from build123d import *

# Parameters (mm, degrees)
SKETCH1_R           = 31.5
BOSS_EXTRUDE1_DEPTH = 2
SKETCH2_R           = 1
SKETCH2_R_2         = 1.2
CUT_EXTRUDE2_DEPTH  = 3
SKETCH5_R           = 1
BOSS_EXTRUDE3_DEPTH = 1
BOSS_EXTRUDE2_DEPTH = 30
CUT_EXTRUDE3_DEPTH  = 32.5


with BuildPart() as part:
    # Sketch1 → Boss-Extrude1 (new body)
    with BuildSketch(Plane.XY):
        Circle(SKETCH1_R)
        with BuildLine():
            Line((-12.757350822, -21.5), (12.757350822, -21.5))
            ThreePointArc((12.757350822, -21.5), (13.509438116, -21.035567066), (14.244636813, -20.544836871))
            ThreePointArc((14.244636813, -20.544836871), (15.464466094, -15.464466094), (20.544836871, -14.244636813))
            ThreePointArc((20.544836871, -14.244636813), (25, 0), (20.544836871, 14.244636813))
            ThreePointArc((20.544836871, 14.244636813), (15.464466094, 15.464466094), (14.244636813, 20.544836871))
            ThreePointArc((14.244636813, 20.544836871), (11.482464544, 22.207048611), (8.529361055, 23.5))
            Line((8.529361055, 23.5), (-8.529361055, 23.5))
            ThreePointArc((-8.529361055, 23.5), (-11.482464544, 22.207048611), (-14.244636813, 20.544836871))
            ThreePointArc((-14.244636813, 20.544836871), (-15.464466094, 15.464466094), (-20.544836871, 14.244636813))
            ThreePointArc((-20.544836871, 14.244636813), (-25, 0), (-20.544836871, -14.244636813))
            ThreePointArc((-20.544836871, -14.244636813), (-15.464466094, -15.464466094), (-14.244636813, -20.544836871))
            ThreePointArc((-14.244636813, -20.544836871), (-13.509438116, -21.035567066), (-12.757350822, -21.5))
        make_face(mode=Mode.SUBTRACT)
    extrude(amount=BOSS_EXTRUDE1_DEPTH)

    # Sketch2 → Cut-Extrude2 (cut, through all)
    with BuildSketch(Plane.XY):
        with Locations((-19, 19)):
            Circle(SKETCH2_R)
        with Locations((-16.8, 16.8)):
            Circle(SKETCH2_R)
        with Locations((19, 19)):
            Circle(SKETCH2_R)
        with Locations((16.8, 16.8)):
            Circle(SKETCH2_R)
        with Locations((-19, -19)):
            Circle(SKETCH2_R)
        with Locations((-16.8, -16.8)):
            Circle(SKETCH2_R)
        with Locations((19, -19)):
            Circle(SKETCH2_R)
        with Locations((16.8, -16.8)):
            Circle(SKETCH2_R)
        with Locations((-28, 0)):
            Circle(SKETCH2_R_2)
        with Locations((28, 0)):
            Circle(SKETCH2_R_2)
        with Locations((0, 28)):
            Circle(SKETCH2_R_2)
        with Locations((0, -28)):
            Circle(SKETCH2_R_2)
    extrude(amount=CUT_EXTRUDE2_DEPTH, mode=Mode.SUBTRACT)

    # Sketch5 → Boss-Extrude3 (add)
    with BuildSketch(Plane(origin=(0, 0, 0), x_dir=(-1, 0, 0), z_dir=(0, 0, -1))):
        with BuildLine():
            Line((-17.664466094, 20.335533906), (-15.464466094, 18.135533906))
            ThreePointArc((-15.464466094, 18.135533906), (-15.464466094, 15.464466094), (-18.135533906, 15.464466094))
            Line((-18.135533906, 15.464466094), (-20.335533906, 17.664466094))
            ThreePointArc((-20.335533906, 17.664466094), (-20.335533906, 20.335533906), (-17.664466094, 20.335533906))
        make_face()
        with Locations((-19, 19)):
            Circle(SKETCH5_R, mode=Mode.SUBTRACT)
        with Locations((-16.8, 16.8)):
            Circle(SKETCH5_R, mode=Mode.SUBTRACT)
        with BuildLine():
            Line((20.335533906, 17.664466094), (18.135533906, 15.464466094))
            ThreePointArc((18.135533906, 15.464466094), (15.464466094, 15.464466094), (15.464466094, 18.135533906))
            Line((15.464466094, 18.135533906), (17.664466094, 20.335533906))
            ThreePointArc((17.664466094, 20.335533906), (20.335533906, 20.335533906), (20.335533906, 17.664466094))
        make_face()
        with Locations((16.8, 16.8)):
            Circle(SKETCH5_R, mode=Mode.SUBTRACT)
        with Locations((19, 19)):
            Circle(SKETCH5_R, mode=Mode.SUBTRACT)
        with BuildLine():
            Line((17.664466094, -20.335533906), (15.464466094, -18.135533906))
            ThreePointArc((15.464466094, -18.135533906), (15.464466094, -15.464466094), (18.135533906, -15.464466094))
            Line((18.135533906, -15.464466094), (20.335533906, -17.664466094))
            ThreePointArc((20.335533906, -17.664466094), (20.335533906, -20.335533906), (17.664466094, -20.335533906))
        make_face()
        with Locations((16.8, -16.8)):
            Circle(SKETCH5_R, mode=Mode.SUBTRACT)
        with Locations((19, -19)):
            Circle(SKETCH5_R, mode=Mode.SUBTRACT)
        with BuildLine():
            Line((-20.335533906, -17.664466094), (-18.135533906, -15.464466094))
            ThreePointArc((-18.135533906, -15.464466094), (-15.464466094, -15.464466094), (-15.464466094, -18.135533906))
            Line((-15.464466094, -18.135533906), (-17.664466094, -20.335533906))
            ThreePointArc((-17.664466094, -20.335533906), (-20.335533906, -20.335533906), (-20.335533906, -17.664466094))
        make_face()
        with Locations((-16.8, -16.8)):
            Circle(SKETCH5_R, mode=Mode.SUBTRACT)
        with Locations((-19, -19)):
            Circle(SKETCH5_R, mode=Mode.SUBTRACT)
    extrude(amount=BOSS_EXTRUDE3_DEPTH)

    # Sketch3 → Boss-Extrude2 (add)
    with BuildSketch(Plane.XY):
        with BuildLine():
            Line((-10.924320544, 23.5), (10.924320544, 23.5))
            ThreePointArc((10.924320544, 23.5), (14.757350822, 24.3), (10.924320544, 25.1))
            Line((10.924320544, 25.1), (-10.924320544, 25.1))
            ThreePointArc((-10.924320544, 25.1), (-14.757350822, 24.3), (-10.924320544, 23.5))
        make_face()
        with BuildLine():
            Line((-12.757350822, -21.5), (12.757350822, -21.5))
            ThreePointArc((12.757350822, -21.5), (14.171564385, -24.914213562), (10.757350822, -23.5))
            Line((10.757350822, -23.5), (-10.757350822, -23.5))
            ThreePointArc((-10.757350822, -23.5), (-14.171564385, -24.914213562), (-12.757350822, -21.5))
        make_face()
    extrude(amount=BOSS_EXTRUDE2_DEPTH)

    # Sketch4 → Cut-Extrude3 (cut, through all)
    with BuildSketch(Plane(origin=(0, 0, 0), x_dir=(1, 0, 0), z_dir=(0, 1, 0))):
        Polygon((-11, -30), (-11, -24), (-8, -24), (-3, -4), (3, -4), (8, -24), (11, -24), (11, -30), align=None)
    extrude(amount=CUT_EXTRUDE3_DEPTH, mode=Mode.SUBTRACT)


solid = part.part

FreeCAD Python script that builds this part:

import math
import FreeCAD as App
import Part
import Sketcher
from FreeCAD import Vector
Q = App.Units.Quantity

doc = App.newDocument("Part")
body = doc.addObject("PartDesign::Body", "Body")

# Sketch on XY plane
sketch1 = body.newObject("Sketcher::SketchObject", "Sketch")
sketch1.AttachmentSupport = (doc.getObject("XY_Plane"), [""])
sketch1.MapMode = "FlatFace"
sketch1.addGeometry([
    Part.Circle(Vector(0, 0, 0), Vector(0, 0, 1), 31.5),  # 0
    Part.LineSegment(Vector(12.8, -21.5, 0), Vector(-12.8, -21.5, 0)),  # 1
    Part.ArcOfCircle(Part.Circle(Vector(0, 0, 0), Vector(0, 0, 1), 25), math.radians(-124.74), math.radians(-120.68)),  # 2
    Part.ArcOfCircle(Part.Circle(Vector(-19, -19, 0), Vector(0, 0, 1), 5), math.radians(-18), math.radians(108)),  # 3
    Part.ArcOfCircle(Part.Circle(Vector(0, 0, 0), Vector(0, 0, 1), 25), math.radians(145), math.radians(215)),  # 4
    Part.ArcOfCircle(Part.Circle(Vector(-19, 19, 0), Vector(0, 0, 1), 5), math.radians(-108), math.radians(18)),  # 5
    Part.ArcOfCircle(Part.Circle(Vector(0, 0, 0), Vector(0, 0, 1), 25), math.radians(109.95), math.radians(124.74)),  # 6
    Part.LineSegment(Vector(-8.5, 23.5, 0), Vector(8.5, 23.5, 0)),  # 7
    Part.ArcOfCircle(Part.Circle(Vector(0, 0, 0), Vector(0, 0, 1), 25), math.radians(55.26), math.radians(70.05)),  # 8
    Part.ArcOfCircle(Part.Circle(Vector(19, 19, 0), Vector(0, 0, 1), 5), math.radians(162), math.radians(288)),  # 9
    Part.ArcOfCircle(Part.Circle(Vector(0, 0, 0), Vector(0, 0, 1), 25), math.radians(-35), math.radians(35)),  # 10
    Part.ArcOfCircle(Part.Circle(Vector(19, -19, 0), Vector(0, 0, 1), 5), math.radians(72), math.radians(198)),  # 11
    Part.ArcOfCircle(Part.Circle(Vector(0, 0, 0), Vector(0, 0, 1), 25), math.radians(-59.32), math.radians(-55.26)),  # 12
], False)
sketch1.addConstraint([
    Sketcher.Constraint("Coincident", 1, 2, 2, 2),
    Sketcher.Constraint("Coincident", 2, 1, 3, 1),
    Sketcher.Constraint("Coincident", 3, 2, 4, 2),
    Sketcher.Constraint("Coincident", 4, 1, 5, 1),
    Sketcher.Constraint("Coincident", 5, 2, 6, 2),
    Sketcher.Constraint("Coincident", 6, 1, 7, 1),
    Sketcher.Constraint("Coincident", 7, 2, 8, 2),
    Sketcher.Constraint("Coincident", 8, 1, 9, 1),
    Sketcher.Constraint("Coincident", 9, 2, 10, 2),
    Sketcher.Constraint("Coincident", 10, 1, 11, 1),
    Sketcher.Constraint("Coincident", 11, 2, 12, 2),
    Sketcher.Constraint("Coincident", 12, 1, 1, 1),
    Sketcher.Constraint("Horizontal", 1),
    Sketcher.Constraint("Horizontal", 7),
    Sketcher.Constraint("Coincident", 0, 3, -1, 1),
    Sketcher.Constraint("Coincident", 2, 3, -1, 1),
    Sketcher.Constraint("Coincident", 4, 3, -1, 1),
    Sketcher.Constraint("Coincident", 6, 3, -1, 1),
    Sketcher.Constraint("Coincident", 8, 3, -1, 1),
    Sketcher.Constraint("Coincident", 10, 3, -1, 1),
    Sketcher.Constraint("Coincident", 12, 3, -1, 1),
    Sketcher.Constraint("Equal", 2, 4),
    Sketcher.Constraint("Equal", 3, 5),
    Sketcher.Constraint("Equal", 4, 6),
    Sketcher.Constraint("Equal", 6, 8),
    Sketcher.Constraint("Equal", 5, 9),
    Sketcher.Constraint("Equal", 8, 10),
    Sketcher.Constraint("Equal", 9, 11),
    Sketcher.Constraint("Equal", 10, 12),
    Sketcher.Constraint("Symmetric", 3, 3, 9, 3, -1, 1),
    Sketcher.Constraint("Symmetric", 5, 3, 11, 3, -1, 1),
    Sketcher.Constraint("Symmetric", 5, 3, 9, 3, -2),
    Sketcher.Constraint("Diameter", 0, Q("63 mm")),
    Sketcher.Constraint("Radius", 2, Q("25 mm")),
    Sketcher.Constraint("Radius", 3, Q("5 mm")),
    Sketcher.Constraint("DistanceX", 3, 3, -1, 1, Q("19 mm")),
    Sketcher.Constraint("DistanceY", 3, 3, -1, 1, Q("19 mm")),
    Sketcher.Constraint("DistanceY", 1, 2, -1, 1, Q("21.5 mm")),
    Sketcher.Constraint("DistanceY", -1, 1, 6, 1, Q("23.5 mm")),
])
pad1 = body.newObject("PartDesign::Pad", "Pad")
pad1.Profile = sketch1
pad1.Length = 2

# Sketch on XY plane
sketch2 = body.newObject("Sketcher::SketchObject", "Sketch001")
sketch2.AttachmentSupport = (doc.getObject("XY_Plane"), [""])
sketch2.MapMode = "FlatFace"
sketch2.addGeometry([
    Part.Circle(Vector(-19, 19, 0), Vector(0, 0, 1), 1),  # 0
    Part.Circle(Vector(-16.8, 16.8, 0), Vector(0, 0, 1), 1),  # 1
    Part.Circle(Vector(19, 19, 0), Vector(0, 0, 1), 1),  # 2
    Part.Circle(Vector(16.8, 16.8, 0), Vector(0, 0, 1), 1),  # 3
    Part.Circle(Vector(-19, -19, 0), Vector(0, 0, 1), 1),  # 4
    Part.Circle(Vector(-16.8, -16.8, 0), Vector(0, 0, 1), 1),  # 5
    Part.Circle(Vector(19, -19, 0), Vector(0, 0, 1), 1),  # 6
    Part.Circle(Vector(16.8, -16.8, 0), Vector(0, 0, 1), 1),  # 7
    Part.Circle(Vector(-28, 0, 0), Vector(0, 0, 1), 1.2),  # 8
    Part.Circle(Vector(28, 0, 0), Vector(0, 0, 1), 1.2),  # 9
    Part.Circle(Vector(0, 28, 0), Vector(0, 0, 1), 1.2),  # 10
    Part.Circle(Vector(0, -28, 0), Vector(0, 0, 1), 1.2),  # 11
], False)
sketch2.addConstraint([
    Sketcher.Constraint("Equal", 0, 1),
    Sketcher.Constraint("Equal", 1, 2),
    Sketcher.Constraint("Equal", 2, 3),
    Sketcher.Constraint("Equal", 3, 4),
    Sketcher.Constraint("Equal", 4, 5),
    Sketcher.Constraint("Equal", 5, 6),
    Sketcher.Constraint("Equal", 6, 7),
    Sketcher.Constraint("Equal", 8, 9),
    Sketcher.Constraint("Equal", 9, 10),
    Sketcher.Constraint("Equal", 10, 11),
    Sketcher.Constraint("Symmetric", 2, 3, 4, 3, -1, 1),
    Sketcher.Constraint("Symmetric", 3, 3, 5, 3, -1, 1),
    Sketcher.Constraint("Symmetric", 0, 3, 6, 3, -1, 1),
    Sketcher.Constraint("Symmetric", 1, 3, 7, 3, -1, 1),
    Sketcher.Constraint("Symmetric", 8, 3, 9, 3, -1, 1),
    Sketcher.Constraint("Symmetric", 10, 3, 11, 3, -1, 1),
    Sketcher.Constraint("Symmetric", 0, 3, 2, 3, -2),
    Sketcher.Constraint("Symmetric", 1, 3, 3, 3, -2),
    Sketcher.Constraint("PointOnObject", 8, 3, -1),
    Sketcher.Constraint("PointOnObject", 10, 3, -2),
    Sketcher.Constraint("Diameter", 0, Q("2 mm")),
    Sketcher.Constraint("Diameter", 8, Q("2.4 mm")),
    Sketcher.Constraint("DistanceX", 0, 3, -1, 1, Q("19 mm")),
    Sketcher.Constraint("DistanceY", -1, 1, 0, 3, Q("19 mm")),
    Sketcher.Constraint("DistanceX", 8, 3, -1, 1, Q("28 mm")),
    Sketcher.Constraint("DistanceY", -1, 1, 10, 3, Q("28 mm")),
    Sketcher.Constraint("DistanceX", 1, 3, -1, 1, Q("16.8 mm")),
    Sketcher.Constraint("DistanceY", -1, 1, 1, 3, Q("16.8 mm")),
])
pocket1 = body.newObject("PartDesign::Pocket", "Pocket")
pocket1.Profile = sketch2
pocket1.Type = "ThroughAll"
pocket1.Reversed = True

# Sketch on XY plane
sketch3 = body.newObject("Sketcher::SketchObject", "Sketch002")
sketch3.AttachmentSupport = (doc.getObject("XY_Plane"), [""])
sketch3.MapMode = "FlatFace"
sketch3.addGeometry([
    Part.LineSegment(Vector(15.5, 18.1, 0), Vector(17.7, 20.3, 0)),  # 0
    Part.ArcOfCircle(Part.Circle(Vector(19, 19, 0), Vector(0, 0, 1), 1.9), math.radians(-45), math.radians(135)),  # 1
    Part.LineSegment(Vector(20.3, 17.7, 0), Vector(18.1, 15.5, 0)),  # 2
    Part.ArcOfCircle(Part.Circle(Vector(16.8, 16.8, 0), Vector(0, 0, 1), 1.9), math.radians(135), math.radians(315)),  # 3
    Part.Circle(Vector(16.8, 16.8, 0), Vector(0, 0, 1), 1),  # 4
    Part.Circle(Vector(19, 19, 0), Vector(0, 0, 1), 1),  # 5
    Part.LineSegment(Vector(-18.1, 15.5, 0), Vector(-20.3, 17.7, 0)),  # 6
    Part.ArcOfCircle(Part.Circle(Vector(-19, 19, 0), Vector(0, 0, 1), 1.9), math.radians(45), math.radians(225)),  # 7
    Part.LineSegment(Vector(-17.7, 20.3, 0), Vector(-15.5, 18.1, 0)),  # 8
    Part.ArcOfCircle(Part.Circle(Vector(-16.8, 16.8, 0), Vector(0, 0, 1), 1.9), math.radians(-135), math.radians(45)),  # 9
    Part.Circle(Vector(-16.8, 16.8, 0), Vector(0, 0, 1), 1),  # 10
    Part.Circle(Vector(-19, 19, 0), Vector(0, 0, 1), 1),  # 11
    Part.LineSegment(Vector(-15.5, -18.1, 0), Vector(-17.7, -20.3, 0)),  # 12
    Part.ArcOfCircle(Part.Circle(Vector(-19, -19, 0), Vector(0, 0, 1), 1.9), math.radians(135), math.radians(315)),  # 13
    Part.LineSegment(Vector(-20.3, -17.7, 0), Vector(-18.1, -15.5, 0)),  # 14
    Part.ArcOfCircle(Part.Circle(Vector(-16.8, -16.8, 0), Vector(0, 0, 1), 1.9), math.radians(-45), math.radians(135)),  # 15
    Part.Circle(Vector(-19, -19, 0), Vector(0, 0, 1), 1),  # 16
    Part.Circle(Vector(-16.8, -16.8, 0), Vector(0, 0, 1), 1),  # 17
    Part.LineSegment(Vector(18.1, -15.5, 0), Vector(20.3, -17.7, 0)),  # 18
    Part.ArcOfCircle(Part.Circle(Vector(19, -19, 0), Vector(0, 0, 1), 1.9), math.radians(-135), math.radians(45)),  # 19
    Part.LineSegment(Vector(17.7, -20.3, 0), Vector(15.5, -18.1, 0)),  # 20
    Part.ArcOfCircle(Part.Circle(Vector(16.8, -16.8, 0), Vector(0, 0, 1), 1.9), math.radians(45), math.radians(225)),  # 21
    Part.Circle(Vector(19, -19, 0), Vector(0, 0, 1), 1),  # 22
    Part.Circle(Vector(16.8, -16.8, 0), Vector(0, 0, 1), 1),  # 23
], False)
sketch3.addConstraint([
    Sketcher.Constraint("Tangent", 0, 2, 1, 2),
    Sketcher.Constraint("Tangent", 1, 1, 2, 1),
    Sketcher.Constraint("Tangent", 2, 2, 3, 2),
    Sketcher.Constraint("Tangent", 3, 1, 0, 1),
    Sketcher.Constraint("Tangent", 6, 2, 7, 2),
    Sketcher.Constraint("Tangent", 7, 1, 8, 1),
    Sketcher.Constraint("Tangent", 8, 2, 9, 2),
    Sketcher.Constraint("Tangent", 9, 1, 6, 1),
    Sketcher.Constraint("Tangent", 12, 2, 13, 2),
    Sketcher.Constraint("Tangent", 13, 1, 14, 1),
    Sketcher.Constraint("Tangent", 14, 2, 15, 2),
    Sketcher.Constraint("Tangent", 15, 1, 12, 1),
    Sketcher.Constraint("Tangent", 18, 2, 19, 2),
    Sketcher.Constraint("Tangent", 19, 1, 20, 1),
    Sketcher.Constraint("Tangent", 20, 2, 21, 2),
    Sketcher.Constraint("Tangent", 21, 1, 18, 1),
    Sketcher.Constraint("Coincident", 4, 3, 3, 3),
    Sketcher.Constraint("Coincident", 5, 3, 1, 3),
    Sketcher.Constraint("Coincident", 10, 3, 9, 3),
    Sketcher.Constraint("Coincident", 11, 3, 7, 3),
    Sketcher.Constraint("Coincident", 16, 3, 13, 3),
    Sketcher.Constraint("Coincident", 17, 3, 15, 3),
    Sketcher.Constraint("Coincident", 22, 3, 19, 3),
    Sketcher.Constraint("Coincident", 23, 3, 21, 3),
    Sketcher.Constraint("Equal", 1, 3),
    Sketcher.Constraint("Equal", 4, 5),
    Sketcher.Constraint("Equal", 3, 7),
    Sketcher.Constraint("Equal", 7, 9),
    Sketcher.Constraint("Equal", 5, 10),
    Sketcher.Constraint("Equal", 10, 11),
    Sketcher.Constraint("Equal", 9, 13),
    Sketcher.Constraint("Equal", 13, 15),
    Sketcher.Constraint("Equal", 11, 16),
    Sketcher.Constraint("Equal", 16, 17),
    Sketcher.Constraint("Equal", 15, 19),
    Sketcher.Constraint("Equal", 19, 21),
    Sketcher.Constraint("Equal", 17, 22),
    Sketcher.Constraint("Equal", 22, 23),
    Sketcher.Constraint("Symmetric", 1, 3, 13, 3, -1, 1),
    Sketcher.Constraint("Symmetric", 3, 3, 15, 3, -1, 1),
    Sketcher.Constraint("Symmetric", 7, 3, 19, 3, -1, 1),
    Sketcher.Constraint("Symmetric", 9, 3, 21, 3, -1, 1),
    Sketcher.Constraint("Symmetric", 1, 3, 7, 3, -2),
    Sketcher.Constraint("Symmetric", 3, 3, 9, 3, -2),
    Sketcher.Constraint("Perpendicular", 2, 6),
    Sketcher.Constraint("Diameter", 4, Q("2 mm")),
    Sketcher.Constraint("DistanceX", -1, 1, 1, 3, Q("19 mm")),
    Sketcher.Constraint("DistanceY", -1, 1, 1, 3, Q("19 mm")),
    Sketcher.Constraint("DistanceX", -1, 1, 3, 3, Q("16.8 mm")),
    Sketcher.Constraint("Radius", 1, Q("1.88873 mm")),
])
pad2 = body.newObject("PartDesign::Pad", "Pad001")
pad2.Profile = sketch3
pad2.Length = 1
pad2.Reversed = True

# Sketch on XY plane
sketch4 = body.newObject("Sketcher::SketchObject", "Sketch003")
sketch4.AttachmentSupport = (doc.getObject("XY_Plane"), [""])
sketch4.MapMode = "FlatFace"
sketch4.addGeometry([
    Part.LineSegment(Vector(-10.9, 23.5, 0), Vector(10.9, 23.5, 0)),  # 0
    Part.ArcOfCircle(Part.Circle(Vector(12.8, 24.3, 0), Vector(0, 0, 1), 2), math.radians(-156), math.radians(156)),  # 1
    Part.LineSegment(Vector(10.9, 25.1, 0), Vector(-10.9, 25.1, 0)),  # 2
    Part.ArcOfCircle(Part.Circle(Vector(-12.8, 24.3, 0), Vector(0, 0, 1), 2), math.radians(24), math.radians(336)),  # 3
    Part.LineSegment(Vector(12.8, -21.5, 0), Vector(-12.8, -21.5, 0)),  # 4
    Part.ArcOfCircle(Part.Circle(Vector(-12.8, -23.5, 0), Vector(0, 0, 1), 2), math.radians(90), math.radians(360)),  # 5
    Part.LineSegment(Vector(-10.8, -23.5, 0), Vector(10.8, -23.5, 0)),  # 6
    Part.ArcOfCircle(Part.Circle(Vector(12.8, -23.5, 0), Vector(0, 0, 1), 2), math.radians(180), math.radians(450)),  # 7
], False)
sketch4.addConstraint([
    Sketcher.Constraint("Coincident", 0, 2, 1, 1),
    Sketcher.Constraint("Coincident", 1, 2, 2, 1),
    Sketcher.Constraint("Coincident", 2, 2, 3, 1),
    Sketcher.Constraint("Coincident", 3, 2, 0, 1),
    Sketcher.Constraint("Tangent", 4, 2, 5, 1),
    Sketcher.Constraint("Coincident", 5, 2, 6, 1),
    Sketcher.Constraint("Coincident", 6, 2, 7, 1),
    Sketcher.Constraint("Tangent", 7, 2, 4, 1),
    Sketcher.Constraint("Horizontal", 0),
    Sketcher.Constraint("Horizontal", 2),
    Sketcher.Constraint("Horizontal", 4),
    Sketcher.Constraint("Horizontal", 6),
    Sketcher.Constraint("Equal", 1, 3),
    Sketcher.Constraint("Equal", 3, 5),
    Sketcher.Constraint("Equal", 5, 7),
    Sketcher.Constraint("Symmetric", 1, 3, 3, 3, -2),
    Sketcher.Constraint("Horizontal", 7, 3, 5, 2),
    Sketcher.Constraint("Vertical", 3, 3, 5, 3),
    Sketcher.Constraint("Vertical", 1, 3, 7, 3),
    Sketcher.Constraint("Vertical", 0, 2, 1, 2),
    Sketcher.Constraint("Radius", 1, Q("2 mm")),
    Sketcher.Constraint("DistanceY", 7, 3, 0, 2, Q("47 mm")),
    Sketcher.Constraint("DistanceY", -1, 1, 1, 3, Q("24.3 mm")),
    Sketcher.Constraint("DistanceY", 5, 3, -1, 1, Q("23.5 mm")),
    Sketcher.Constraint("DistanceX", 4, 2, 4, 1, Q("25.514702 mm")),
])
pad3 = body.newObject("PartDesign::Pad", "Pad002")
pad3.Profile = sketch4
pad3.Length = 30

# Sketch on XZ plane
sketch5 = body.newObject("Sketcher::SketchObject", "Sketch004")
sketch5.AttachmentSupport = (doc.getObject("XZ_Plane"), [""])
sketch5.MapMode = "FlatFace"
sketch5.addGeometry([
    Part.LineSegment(Vector(-11, 24, 0), Vector(-11, 30, 0)),  # 0
    Part.LineSegment(Vector(-11, 30, 0), Vector(11, 30, 0)),  # 1
    Part.LineSegment(Vector(11, 30, 0), Vector(11, 24, 0)),  # 2
    Part.LineSegment(Vector(11, 24, 0), Vector(8, 24, 0)),  # 3
    Part.LineSegment(Vector(8, 24, 0), Vector(3, 4, 0)),  # 4
    Part.LineSegment(Vector(3, 4, 0), Vector(-3, 4, 0)),  # 5
    Part.LineSegment(Vector(-3, 4, 0), Vector(-8, 24, 0)),  # 6
    Part.LineSegment(Vector(-8, 24, 0), Vector(-11, 24, 0)),  # 7
], False)
sketch5.addConstraint([
    Sketcher.Constraint("Coincident", 0, 2, 1, 1),
    Sketcher.Constraint("Coincident", 1, 2, 2, 1),
    Sketcher.Constraint("Coincident", 2, 2, 3, 1),
    Sketcher.Constraint("Coincident", 3, 2, 4, 1),
    Sketcher.Constraint("Coincident", 4, 2, 5, 1),
    Sketcher.Constraint("Coincident", 5, 2, 6, 1),
    Sketcher.Constraint("Coincident", 6, 2, 7, 1),
    Sketcher.Constraint("Coincident", 7, 2, 0, 1),
    Sketcher.Constraint("Vertical", 0),
    Sketcher.Constraint("Horizontal", 1),
    Sketcher.Constraint("Vertical", 2),
    Sketcher.Constraint("Horizontal", 3),
    Sketcher.Constraint("Horizontal", 5),
    Sketcher.Constraint("Horizontal", 7),
    Sketcher.Constraint("Symmetric", 3, 2, 6, 2, -2),
    Sketcher.Constraint("Equal", 3, 7),
    Sketcher.Constraint("Equal", 5, 0),
    Sketcher.Constraint("Equal", 4, 6),
    Sketcher.Constraint("DistanceX", 1, 1, 1, 2, Q("22 mm")),
    Sketcher.Constraint("DistanceX", 3, 2, 3, 1, Q("3 mm")),
    Sketcher.Constraint("DistanceX", 5, 2, 5, 1, Q("6 mm")),
    Sketcher.Constraint("DistanceY", -1, 1, 0, 2, Q("30 mm")),
    Sketcher.Constraint("DistanceY", -1, 1, 4, 2, Q("4 mm")),
])
pocket2 = body.newObject("PartDesign::Pocket", "Pocket001")
pocket2.Profile = sketch5
pocket2.Type = "ThroughAll"

doc.recompute()
